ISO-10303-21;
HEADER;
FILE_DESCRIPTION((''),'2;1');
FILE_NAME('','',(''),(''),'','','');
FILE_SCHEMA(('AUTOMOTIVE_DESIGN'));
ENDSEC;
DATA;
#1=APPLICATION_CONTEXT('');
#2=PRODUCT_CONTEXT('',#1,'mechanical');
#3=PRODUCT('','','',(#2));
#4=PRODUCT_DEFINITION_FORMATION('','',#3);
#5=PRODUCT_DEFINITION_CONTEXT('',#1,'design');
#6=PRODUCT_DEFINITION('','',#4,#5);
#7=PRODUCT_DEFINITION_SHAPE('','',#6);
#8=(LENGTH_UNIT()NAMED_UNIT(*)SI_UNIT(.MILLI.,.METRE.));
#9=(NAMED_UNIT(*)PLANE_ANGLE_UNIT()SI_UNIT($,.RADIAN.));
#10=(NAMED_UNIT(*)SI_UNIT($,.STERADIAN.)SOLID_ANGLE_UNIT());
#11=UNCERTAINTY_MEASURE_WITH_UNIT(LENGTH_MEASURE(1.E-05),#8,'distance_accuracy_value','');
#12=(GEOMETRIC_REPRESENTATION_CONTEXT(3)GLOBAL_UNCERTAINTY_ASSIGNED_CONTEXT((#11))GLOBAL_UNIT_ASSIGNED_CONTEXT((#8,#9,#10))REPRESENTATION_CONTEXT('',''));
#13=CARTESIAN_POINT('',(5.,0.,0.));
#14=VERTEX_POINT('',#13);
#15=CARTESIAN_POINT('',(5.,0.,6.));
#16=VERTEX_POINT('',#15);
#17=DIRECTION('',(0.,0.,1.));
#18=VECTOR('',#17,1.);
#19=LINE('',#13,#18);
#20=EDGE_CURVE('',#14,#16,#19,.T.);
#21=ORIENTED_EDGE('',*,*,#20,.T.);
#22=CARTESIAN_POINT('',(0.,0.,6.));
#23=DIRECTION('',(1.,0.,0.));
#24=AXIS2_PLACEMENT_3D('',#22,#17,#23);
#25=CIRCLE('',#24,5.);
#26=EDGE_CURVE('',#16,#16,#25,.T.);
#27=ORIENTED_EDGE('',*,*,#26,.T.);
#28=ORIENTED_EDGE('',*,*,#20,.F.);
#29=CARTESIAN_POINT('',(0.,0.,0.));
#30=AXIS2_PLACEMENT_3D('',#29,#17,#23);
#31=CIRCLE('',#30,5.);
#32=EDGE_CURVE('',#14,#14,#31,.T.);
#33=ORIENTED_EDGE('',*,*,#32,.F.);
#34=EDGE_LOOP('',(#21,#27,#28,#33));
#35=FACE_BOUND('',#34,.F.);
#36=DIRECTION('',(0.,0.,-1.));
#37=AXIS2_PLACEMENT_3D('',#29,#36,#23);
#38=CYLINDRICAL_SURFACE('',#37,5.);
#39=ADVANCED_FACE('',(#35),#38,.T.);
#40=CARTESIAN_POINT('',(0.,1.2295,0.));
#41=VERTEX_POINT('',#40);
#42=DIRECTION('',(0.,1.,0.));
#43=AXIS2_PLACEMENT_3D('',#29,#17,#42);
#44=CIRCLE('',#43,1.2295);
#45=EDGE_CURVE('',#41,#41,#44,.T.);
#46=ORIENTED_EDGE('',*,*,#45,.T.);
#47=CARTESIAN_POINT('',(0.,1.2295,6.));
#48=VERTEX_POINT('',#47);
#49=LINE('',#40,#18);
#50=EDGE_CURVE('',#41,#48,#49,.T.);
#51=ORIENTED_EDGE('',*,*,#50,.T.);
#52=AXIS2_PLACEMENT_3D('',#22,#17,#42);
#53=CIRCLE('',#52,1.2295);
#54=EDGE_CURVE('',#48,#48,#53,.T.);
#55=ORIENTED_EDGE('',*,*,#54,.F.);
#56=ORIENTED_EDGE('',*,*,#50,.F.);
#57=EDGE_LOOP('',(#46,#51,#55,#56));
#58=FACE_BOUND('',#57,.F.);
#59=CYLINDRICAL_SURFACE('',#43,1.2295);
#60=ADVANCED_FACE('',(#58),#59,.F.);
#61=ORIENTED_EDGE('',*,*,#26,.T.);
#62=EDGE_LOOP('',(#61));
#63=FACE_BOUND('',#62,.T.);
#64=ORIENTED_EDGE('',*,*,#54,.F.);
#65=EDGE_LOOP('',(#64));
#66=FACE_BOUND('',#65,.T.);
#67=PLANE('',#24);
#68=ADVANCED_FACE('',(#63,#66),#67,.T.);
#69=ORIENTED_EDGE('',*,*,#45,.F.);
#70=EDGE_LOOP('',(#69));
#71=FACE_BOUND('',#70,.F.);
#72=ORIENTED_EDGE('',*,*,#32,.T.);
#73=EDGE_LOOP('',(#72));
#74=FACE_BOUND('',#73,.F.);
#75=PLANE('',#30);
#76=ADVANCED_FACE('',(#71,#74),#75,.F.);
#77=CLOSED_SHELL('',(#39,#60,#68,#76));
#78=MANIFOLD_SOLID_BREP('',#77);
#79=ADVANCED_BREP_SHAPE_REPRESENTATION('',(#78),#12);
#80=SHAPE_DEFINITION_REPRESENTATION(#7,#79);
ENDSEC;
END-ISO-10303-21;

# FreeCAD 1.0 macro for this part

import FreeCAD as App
import Part
import Sketcher

doc = App.newDocument("Part")
body = doc.addObject("PartDesign::Body", "Body")

# Sketch on XY plane
sketch1 = body.newObject("Sketcher::SketchObject", "Sketch")
sketch1.AttachmentSupport = (doc.getObject("XY_Plane"), [""])
sketch1.MapMode = "FlatFace"
sketch1.addGeometry(Part.Circle(App.Vector(0, 0, 0), App.Vector(0, 0, 1), 5), False)
sketch1.addConstraint([
    Sketcher.Constraint("Coincident", 0, 3, -1, 1),
    Sketcher.Constraint("Diameter", 0, 10.0),
])
pad1 = body.newObject("PartDesign::Pad", "Pad")
pad1.Profile = sketch1
pad1.Length = 6

# Sketch on XY plane
sketch2 = body.newObject("Sketcher::SketchObject", "Sketch001")
sketch2.AttachmentSupport = (doc.getObject("XY_Plane"), [""])
sketch2.MapMode = "FlatFace"
sketch2.addGeometry(Part.Circle(App.Vector(0, 0, 0), App.Vector(0, 0, 1), 1.2295), False)
sketch2.addConstraint([
    Sketcher.Constraint("Coincident", 0, 3, -1, 1),
    Sketcher.Constraint("Diameter", 0, 2.459),
])
doc.recompute()
hole = body.newObject("PartDesign::Hole", "Hole")
hole.Profile = sketch2
hole.ThreadType = "None"
hole.Diameter = 2.459
hole.DepthType = "Dimension"
hole.Depth = 10
hole.DrillPoint = "Flat"
hole.Reversed = True

doc.recompute()
